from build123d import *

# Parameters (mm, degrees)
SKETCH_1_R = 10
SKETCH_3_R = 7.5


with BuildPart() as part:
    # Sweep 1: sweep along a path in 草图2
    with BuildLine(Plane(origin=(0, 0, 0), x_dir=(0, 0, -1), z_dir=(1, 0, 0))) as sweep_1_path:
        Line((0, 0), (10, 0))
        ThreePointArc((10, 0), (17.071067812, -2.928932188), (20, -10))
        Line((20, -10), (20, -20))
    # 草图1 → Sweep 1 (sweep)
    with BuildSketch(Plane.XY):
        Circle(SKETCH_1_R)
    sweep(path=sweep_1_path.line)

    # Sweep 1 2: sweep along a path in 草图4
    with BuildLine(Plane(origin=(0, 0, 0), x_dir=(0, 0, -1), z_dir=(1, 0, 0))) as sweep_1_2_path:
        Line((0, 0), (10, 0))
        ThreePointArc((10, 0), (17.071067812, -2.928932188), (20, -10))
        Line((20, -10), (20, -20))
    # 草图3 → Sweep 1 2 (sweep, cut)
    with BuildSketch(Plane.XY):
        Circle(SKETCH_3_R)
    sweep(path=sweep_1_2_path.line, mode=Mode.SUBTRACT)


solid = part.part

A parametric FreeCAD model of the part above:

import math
import FreeCAD as App
import Part
import Sketcher
Q = App.Units.Quantity

doc = App.newDocument("Part")
body = doc.addObject("PartDesign::Body", "Body")

sketch1 = body.newObject("Sketcher::SketchObject", "Sketch")
sketch1.AttachmentSupport = (doc.getObject("XY_Plane"), [""])
sketch1.MapMode = "FlatFace"
sketch1.addGeometry(Part.Circle(App.Vector(0, 0, 0), App.Vector(0, 0, 1), 10), False)
sketch1.addConstraint([
    Sketcher.Constraint("Coincident", 0, 3, -1, 1),
    Sketcher.Constraint("Diameter", 0, Q("20 mm")),
])

sketch2 = body.newObject("Sketcher::SketchObject", "Sketch001")
sketch2.AttachmentSupport = (doc.getObject("YZ_Plane"), [""])
sketch2.MapMode = "FlatFace"
sketch2.addGeometry([
    Part.LineSegment(App.Vector(0, 0, 0), App.Vector(0, -10, 0)),
    Part.ArcOfCircle(Part.Circle(App.Vector(-10, -10, 0), App.Vector(0, 0, 1), 10), math.radians(-90), math.radians(0)),
    Part.LineSegment(App.Vector(-10, -20, 0), App.Vector(-20, -20, 0)),
], False)
sketch2.addConstraint([
    Sketcher.Constraint("Tangent", 0, 2, 1, 2),
    Sketcher.Constraint("Tangent", 1, 1, 2, 1),
    Sketcher.Constraint("Vertical", 0),
    Sketcher.Constraint("Horizontal", 2),
    Sketcher.Constraint("Coincident", 0, 1, -1, 1),
    Sketcher.Constraint("Equal", 2, 0),
    Sketcher.Constraint("Radius", 1, Q("10 mm")),
    Sketcher.Constraint("DistanceX", 2, 2, 2, 1, Q("10 mm")),
])
doc.recompute()

additivepipe = body.newObject("PartDesign::AdditivePipe", "AdditivePipe")
additivepipe.Profile = sketch1
additivepipe.Spine = (sketch2, ["Edge1", "Edge2", "Edge3"])

sketch3 = body.newObject("Sketcher::SketchObject", "Sketch002")
sketch3.AttachmentSupport = (doc.getObject("XY_Plane"), [""])
sketch3.MapMode = "FlatFace"
sketch3.addGeometry(Part.Circle(App.Vector(0, 0, 0), App.Vector(0, 0, 1), 8), False)
sketch3.addConstraint([
    Sketcher.Constraint("Coincident", 0, 3, -1, 1),
    Sketcher.Constraint("Diameter", 0, Q("15 mm")),
])

sketch4 = body.newObject("Sketcher::SketchObject", "Sketch003")
sketch4.AttachmentSupport = (doc.getObject("YZ_Plane"), [""])
sketch4.MapMode = "FlatFace"
sketch4.addGeometry([
    Part.LineSegment(App.Vector(0, 0, 0), App.Vector(0, -10, 0)),
    Part.ArcOfCircle(Part.Circle(App.Vector(-10, -10, 0), App.Vector(0, 0, 1), 10), math.radians(-90), math.radians(0)),
    Part.LineSegment(App.Vector(-10, -20, 0), App.Vector(-20, -20, 0)),
], False)
sketch4.addConstraint([
    Sketcher.Constraint("Tangent", 0, 2, 1, 2),
    Sketcher.Constraint("Tangent", 1, 1, 2, 1),
    Sketcher.Constraint("Vertical", 0),
    Sketcher.Constraint("Horizontal", 2),
    Sketcher.Constraint("Coincident", 0, 1, -1, 1),
    Sketcher.Constraint("Equal", 2, 0),
    Sketcher.Constraint("Radius", 1, Q("10 mm")),
    Sketcher.Constraint("DistanceX", 2, 2, 2, 1, Q("10 mm")),
])
doc.recompute()

subtractivepipe = body.newObject("PartDesign::SubtractivePipe", "SubtractivePipe")
subtractivepipe.Profile = sketch3
subtractivepipe.Spine = (sketch4, ["Edge1", "Edge2", "Edge3"])

doc.recompute()
